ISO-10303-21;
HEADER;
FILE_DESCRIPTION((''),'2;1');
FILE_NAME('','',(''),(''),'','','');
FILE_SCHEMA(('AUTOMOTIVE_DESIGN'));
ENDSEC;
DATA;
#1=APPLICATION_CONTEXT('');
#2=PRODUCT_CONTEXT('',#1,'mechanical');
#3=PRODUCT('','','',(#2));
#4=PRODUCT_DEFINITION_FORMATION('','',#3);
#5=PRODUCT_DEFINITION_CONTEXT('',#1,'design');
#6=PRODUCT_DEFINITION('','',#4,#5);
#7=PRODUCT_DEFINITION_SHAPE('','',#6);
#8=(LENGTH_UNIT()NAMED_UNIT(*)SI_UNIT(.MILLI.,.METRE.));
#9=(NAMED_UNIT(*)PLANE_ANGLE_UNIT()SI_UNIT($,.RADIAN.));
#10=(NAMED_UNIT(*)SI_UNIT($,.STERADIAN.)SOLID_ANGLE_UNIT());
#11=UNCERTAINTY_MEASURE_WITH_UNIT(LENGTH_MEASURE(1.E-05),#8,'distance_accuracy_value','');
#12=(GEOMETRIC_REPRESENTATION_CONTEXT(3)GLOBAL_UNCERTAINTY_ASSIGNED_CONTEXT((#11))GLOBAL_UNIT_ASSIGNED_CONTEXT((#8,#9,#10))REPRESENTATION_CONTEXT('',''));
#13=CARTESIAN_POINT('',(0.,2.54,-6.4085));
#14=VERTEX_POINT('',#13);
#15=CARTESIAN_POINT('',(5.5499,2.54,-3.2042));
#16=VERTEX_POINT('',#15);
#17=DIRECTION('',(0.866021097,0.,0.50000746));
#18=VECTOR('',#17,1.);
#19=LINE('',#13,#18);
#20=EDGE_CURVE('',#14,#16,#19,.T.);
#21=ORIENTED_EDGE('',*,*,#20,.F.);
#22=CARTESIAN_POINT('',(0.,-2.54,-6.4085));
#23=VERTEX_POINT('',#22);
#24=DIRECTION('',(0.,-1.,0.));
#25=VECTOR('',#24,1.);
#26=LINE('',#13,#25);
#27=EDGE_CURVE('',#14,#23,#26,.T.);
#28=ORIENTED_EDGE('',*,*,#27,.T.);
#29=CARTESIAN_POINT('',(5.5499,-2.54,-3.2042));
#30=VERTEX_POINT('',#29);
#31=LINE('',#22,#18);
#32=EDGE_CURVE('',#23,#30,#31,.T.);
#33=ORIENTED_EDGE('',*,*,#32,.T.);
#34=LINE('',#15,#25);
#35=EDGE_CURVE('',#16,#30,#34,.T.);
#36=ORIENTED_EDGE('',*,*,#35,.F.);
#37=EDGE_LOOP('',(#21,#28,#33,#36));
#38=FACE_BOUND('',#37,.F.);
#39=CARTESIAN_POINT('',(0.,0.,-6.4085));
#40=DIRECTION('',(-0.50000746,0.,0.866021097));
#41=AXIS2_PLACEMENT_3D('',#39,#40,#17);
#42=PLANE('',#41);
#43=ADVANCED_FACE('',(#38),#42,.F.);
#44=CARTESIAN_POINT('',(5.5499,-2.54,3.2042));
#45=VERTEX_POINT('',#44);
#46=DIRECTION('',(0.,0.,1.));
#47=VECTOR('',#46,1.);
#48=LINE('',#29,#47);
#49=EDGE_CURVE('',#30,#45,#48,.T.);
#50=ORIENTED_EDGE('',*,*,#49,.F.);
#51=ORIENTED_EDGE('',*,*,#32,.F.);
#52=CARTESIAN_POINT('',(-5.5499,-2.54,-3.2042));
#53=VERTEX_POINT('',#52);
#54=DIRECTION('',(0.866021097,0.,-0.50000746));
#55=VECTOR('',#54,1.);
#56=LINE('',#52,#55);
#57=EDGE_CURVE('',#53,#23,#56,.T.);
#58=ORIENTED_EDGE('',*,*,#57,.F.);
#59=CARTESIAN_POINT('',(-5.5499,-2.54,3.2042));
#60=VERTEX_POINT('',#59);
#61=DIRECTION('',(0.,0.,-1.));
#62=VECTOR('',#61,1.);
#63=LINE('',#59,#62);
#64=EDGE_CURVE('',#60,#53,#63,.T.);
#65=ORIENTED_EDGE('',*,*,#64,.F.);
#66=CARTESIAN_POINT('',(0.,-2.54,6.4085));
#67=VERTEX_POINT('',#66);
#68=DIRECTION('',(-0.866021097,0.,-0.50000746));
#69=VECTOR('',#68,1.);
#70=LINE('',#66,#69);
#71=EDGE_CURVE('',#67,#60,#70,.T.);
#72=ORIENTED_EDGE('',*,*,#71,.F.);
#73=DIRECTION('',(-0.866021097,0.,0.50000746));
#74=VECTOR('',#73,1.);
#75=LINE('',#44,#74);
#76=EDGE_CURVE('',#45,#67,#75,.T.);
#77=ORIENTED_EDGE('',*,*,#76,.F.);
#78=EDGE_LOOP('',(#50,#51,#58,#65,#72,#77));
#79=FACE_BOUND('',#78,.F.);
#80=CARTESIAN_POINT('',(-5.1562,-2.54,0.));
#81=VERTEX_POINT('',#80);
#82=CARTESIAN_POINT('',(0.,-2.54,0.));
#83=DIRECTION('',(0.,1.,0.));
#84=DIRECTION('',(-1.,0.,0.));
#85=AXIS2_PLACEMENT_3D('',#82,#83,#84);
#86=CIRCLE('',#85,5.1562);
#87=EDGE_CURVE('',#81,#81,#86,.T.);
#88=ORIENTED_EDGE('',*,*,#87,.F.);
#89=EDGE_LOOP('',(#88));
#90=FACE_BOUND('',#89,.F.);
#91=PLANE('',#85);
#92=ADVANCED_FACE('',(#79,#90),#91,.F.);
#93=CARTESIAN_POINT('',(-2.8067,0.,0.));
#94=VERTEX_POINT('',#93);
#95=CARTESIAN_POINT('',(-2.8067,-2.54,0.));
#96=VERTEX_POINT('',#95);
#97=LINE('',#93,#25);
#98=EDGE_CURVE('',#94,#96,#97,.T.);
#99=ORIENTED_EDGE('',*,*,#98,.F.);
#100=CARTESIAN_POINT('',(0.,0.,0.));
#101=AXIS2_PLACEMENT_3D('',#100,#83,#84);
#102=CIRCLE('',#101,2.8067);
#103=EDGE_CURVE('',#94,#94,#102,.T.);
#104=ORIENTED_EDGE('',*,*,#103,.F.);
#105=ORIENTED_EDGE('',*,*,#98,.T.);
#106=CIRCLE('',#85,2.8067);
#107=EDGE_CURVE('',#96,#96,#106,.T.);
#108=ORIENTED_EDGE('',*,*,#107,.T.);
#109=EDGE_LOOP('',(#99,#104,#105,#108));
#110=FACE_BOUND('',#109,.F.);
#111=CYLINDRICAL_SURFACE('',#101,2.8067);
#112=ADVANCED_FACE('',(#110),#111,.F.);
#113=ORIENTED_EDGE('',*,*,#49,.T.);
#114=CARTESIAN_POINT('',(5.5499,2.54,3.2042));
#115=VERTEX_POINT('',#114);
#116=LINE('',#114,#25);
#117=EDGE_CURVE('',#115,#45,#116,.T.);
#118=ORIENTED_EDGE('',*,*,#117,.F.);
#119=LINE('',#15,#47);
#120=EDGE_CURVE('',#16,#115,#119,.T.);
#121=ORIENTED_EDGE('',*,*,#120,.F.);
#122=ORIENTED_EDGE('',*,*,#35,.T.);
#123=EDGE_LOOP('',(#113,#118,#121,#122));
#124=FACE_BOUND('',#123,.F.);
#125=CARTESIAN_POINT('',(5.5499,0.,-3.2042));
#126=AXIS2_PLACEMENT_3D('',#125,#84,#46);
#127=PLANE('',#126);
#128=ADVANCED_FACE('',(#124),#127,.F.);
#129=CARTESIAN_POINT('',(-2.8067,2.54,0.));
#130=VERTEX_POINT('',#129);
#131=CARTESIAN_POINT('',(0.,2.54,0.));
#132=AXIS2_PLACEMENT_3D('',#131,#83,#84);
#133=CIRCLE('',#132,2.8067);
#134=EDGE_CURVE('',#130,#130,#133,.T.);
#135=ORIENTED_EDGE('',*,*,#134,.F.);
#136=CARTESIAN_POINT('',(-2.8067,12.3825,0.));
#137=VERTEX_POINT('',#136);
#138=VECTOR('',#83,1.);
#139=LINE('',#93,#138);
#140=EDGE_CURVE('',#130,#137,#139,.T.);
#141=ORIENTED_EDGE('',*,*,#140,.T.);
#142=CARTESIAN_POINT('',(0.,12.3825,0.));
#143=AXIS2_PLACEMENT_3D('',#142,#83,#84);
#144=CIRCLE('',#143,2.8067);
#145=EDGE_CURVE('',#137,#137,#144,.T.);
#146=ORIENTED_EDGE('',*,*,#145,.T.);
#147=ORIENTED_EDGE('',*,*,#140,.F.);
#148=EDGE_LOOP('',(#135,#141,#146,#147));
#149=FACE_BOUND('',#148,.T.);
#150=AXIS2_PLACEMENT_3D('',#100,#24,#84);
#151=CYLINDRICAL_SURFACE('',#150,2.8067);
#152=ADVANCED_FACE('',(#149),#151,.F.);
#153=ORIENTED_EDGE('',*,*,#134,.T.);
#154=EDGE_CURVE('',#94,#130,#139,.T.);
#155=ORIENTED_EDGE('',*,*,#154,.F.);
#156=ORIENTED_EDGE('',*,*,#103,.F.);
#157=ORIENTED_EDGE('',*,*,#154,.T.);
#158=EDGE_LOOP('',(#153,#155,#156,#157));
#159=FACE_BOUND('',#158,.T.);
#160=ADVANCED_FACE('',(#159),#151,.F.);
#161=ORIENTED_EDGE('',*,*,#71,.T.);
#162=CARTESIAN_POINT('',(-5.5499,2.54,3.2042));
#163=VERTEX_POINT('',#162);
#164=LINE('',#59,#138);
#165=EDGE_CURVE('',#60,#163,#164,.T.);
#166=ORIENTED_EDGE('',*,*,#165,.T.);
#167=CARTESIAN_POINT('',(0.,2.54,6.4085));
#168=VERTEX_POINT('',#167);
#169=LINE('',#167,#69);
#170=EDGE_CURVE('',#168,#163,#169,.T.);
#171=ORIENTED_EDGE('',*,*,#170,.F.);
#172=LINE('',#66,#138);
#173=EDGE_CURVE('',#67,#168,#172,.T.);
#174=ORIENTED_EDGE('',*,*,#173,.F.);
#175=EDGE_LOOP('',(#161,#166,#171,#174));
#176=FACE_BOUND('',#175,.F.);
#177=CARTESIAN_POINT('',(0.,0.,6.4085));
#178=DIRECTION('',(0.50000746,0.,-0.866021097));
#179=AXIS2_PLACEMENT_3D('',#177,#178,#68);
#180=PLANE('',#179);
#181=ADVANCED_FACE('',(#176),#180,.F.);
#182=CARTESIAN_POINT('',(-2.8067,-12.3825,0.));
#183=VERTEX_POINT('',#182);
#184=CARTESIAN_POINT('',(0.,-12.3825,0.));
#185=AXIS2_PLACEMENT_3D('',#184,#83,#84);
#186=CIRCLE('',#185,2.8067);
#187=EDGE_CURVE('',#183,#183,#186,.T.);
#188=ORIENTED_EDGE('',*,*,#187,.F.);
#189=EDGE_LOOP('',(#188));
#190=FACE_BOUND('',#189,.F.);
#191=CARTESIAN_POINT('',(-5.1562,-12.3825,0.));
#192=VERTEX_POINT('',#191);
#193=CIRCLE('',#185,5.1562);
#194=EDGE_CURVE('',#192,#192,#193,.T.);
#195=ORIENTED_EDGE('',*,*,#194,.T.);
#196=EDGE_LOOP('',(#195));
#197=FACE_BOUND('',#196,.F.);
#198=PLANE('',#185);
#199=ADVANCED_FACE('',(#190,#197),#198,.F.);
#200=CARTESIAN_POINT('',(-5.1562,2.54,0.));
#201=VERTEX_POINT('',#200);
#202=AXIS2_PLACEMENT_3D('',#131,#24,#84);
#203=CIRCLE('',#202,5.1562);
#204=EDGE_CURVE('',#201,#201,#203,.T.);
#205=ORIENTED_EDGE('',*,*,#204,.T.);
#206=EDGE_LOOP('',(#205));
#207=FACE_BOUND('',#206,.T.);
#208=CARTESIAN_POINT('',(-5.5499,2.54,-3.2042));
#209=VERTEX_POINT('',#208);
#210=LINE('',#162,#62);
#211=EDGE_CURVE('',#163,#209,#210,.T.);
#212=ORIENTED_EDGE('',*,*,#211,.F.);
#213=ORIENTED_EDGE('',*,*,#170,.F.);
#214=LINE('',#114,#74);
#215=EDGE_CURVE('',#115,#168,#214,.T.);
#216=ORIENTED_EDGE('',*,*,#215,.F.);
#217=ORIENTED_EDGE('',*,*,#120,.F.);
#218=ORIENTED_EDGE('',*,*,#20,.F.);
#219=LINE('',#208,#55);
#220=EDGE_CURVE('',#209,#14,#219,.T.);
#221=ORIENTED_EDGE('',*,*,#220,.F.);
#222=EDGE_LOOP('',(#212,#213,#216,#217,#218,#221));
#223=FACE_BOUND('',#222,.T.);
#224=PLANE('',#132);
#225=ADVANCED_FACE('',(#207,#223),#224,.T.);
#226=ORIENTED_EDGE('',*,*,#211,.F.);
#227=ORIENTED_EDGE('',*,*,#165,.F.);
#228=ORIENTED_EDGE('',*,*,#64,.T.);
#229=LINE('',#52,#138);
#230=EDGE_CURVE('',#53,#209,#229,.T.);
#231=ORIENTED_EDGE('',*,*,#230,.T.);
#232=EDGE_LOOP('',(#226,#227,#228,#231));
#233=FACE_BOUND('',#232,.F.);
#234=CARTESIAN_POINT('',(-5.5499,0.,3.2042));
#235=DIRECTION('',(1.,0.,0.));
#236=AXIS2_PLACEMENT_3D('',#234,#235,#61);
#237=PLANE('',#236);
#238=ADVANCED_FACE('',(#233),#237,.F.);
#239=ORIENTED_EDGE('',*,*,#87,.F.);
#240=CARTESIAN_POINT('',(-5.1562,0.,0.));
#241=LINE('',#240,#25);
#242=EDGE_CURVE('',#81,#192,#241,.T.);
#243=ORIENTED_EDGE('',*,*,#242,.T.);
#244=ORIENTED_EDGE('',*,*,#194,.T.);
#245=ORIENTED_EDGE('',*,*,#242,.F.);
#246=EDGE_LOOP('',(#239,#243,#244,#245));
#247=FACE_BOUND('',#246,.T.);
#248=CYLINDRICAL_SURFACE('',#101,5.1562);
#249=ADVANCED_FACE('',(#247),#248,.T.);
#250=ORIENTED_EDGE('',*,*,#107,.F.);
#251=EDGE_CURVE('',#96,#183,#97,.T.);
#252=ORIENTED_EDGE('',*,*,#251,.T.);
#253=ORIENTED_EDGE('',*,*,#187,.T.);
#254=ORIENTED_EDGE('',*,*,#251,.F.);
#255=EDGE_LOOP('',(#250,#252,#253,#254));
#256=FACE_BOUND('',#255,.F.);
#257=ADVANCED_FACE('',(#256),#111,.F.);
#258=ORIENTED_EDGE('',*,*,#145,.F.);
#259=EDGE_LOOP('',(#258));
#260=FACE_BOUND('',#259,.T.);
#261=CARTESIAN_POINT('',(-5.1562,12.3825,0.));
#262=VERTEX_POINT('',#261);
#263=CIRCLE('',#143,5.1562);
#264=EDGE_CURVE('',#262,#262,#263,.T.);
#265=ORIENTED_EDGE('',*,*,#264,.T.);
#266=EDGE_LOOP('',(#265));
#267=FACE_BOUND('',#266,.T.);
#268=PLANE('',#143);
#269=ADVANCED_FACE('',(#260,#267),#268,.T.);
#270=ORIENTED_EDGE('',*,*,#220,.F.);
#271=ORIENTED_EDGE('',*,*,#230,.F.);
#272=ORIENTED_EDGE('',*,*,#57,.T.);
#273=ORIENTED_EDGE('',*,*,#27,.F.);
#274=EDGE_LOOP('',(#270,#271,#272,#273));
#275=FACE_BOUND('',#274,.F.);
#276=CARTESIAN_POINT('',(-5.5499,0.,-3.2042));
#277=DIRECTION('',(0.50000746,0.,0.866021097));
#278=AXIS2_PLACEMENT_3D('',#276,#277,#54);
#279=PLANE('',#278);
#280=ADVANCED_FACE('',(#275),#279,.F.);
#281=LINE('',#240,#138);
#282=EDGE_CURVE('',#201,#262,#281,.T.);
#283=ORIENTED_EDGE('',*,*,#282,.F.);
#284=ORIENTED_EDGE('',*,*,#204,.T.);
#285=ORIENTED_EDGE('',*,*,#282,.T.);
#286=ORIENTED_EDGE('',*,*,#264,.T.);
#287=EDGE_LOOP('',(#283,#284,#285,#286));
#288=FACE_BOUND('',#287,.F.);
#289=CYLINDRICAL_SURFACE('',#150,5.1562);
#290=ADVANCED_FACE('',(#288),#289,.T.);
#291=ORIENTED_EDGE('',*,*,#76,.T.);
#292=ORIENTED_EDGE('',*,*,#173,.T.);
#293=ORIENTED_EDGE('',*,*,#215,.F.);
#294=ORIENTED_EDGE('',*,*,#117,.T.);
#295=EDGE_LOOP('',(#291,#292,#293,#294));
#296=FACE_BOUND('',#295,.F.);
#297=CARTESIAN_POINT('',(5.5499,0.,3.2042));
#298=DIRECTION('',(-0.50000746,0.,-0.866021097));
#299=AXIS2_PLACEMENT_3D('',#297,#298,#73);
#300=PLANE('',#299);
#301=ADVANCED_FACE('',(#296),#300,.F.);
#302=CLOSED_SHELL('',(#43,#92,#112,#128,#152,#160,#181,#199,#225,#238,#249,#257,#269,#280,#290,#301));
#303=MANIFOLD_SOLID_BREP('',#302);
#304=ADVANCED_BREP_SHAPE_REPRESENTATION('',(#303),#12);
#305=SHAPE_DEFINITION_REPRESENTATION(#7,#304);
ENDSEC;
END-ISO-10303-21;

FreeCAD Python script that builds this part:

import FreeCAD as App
import Part
import Sketcher
Q = App.Units.Quantity


def add_polygon(sketch, points):
    """Adds a closed chain of lines whose ends are joined by coincident constraints."""
    first, n = sketch.GeometryCount, len(points)
    for a, b in zip(points, points[1:] + points[:1]):
        sketch.addGeometry(Part.LineSegment(App.Vector(*a, 0), App.Vector(*b, 0)), False)
    for i in range(n):
        sketch.addConstraint(Sketcher.Constraint("Coincident", first + i, 2, first + (i + 1) % n, 1))

doc = App.newDocument("Part")
params = doc.addObject("Spreadsheet::Sheet", "Params")
for row, (alias, value) in enumerate([
    ("sketch1_diameter", "0.221 in"),
    ("pad1_length", "0.2 in"),
    ("sketch2_diameter", "0.406 in"),
    ("sketch2_diameter2", "0.221 in"),
    ("pad2_length", "0.975 in"),
], start=1):
    params.set(f"A{row}", alias)
    params.set(f"B{row}", "=" + value)
    params.setAlias(f"B{row}", alias)

body = doc.addObject("PartDesign::Body", "Body")

sketch1 = doc.addObject("Sketcher::SketchObject", "Sketch")
body.addObject(sketch1)
sketch1.AttachmentSupport = (doc.XZ_Plane, [""])
sketch1.MapMode = "FlatFace"
add_polygon(sketch1, [(0, -6.4), (-5.5, -3.2), (-5.5, 3.2), (0, 6.4), (5.5, 3.2), (5.5, -3.2)])
sketch1.addGeometry(Part.Circle(App.Vector(0, 0, 0), App.Vector(0, 0, 1), 2.8), False)
sketch1.addConstraint(Sketcher.Constraint("Vertical", 1))
sketch1.addConstraint(Sketcher.Constraint("Vertical", 4))
sketch1.addConstraint(Sketcher.Constraint("Coincident", 6, 3, -1, 1))
sketch1.addConstraint(Sketcher.Constraint("Symmetric", 0, 2, 3, 2, -1, 1))
sketch1.addConstraint(Sketcher.Constraint("Symmetric", 2, 2, 5, 2, -1, 1))
sketch1.addConstraint(Sketcher.Constraint("PointOnObject", 2, 2, -2))
sketch1.addConstraint(Sketcher.Constraint("Parallel", 2, 5))
sketch1.addConstraint(Sketcher.Constraint("Horizontal", 1, 2, 3, 2))
sketch1.addConstraint(Sketcher.Constraint("Diameter", 6, Q("0.221 in")))
sketch1.addConstraint(Sketcher.Constraint("Angle", 0, Q("149.9995 deg")))
sketch1.addConstraint(Sketcher.Constraint("DistanceX", 1, 2, 3, 2, Q("0.437 in")))
sketch1.addConstraint(Sketcher.Constraint("DistanceY", 1, 1, 1, 2, Q("0.2523 in")))
sketch1.setExpression("Constraints[14]", "Params.sketch1_diameter")
pad1 = doc.addObject("PartDesign::Pad", "Pad")
body.addObject(pad1)
pad1.Profile = sketch1
pad1.setExpression("Length", "Params.pad1_length")
pad1.Midplane = True

sketch2 = doc.addObject("Sketcher::SketchObject", "Sketch001")
body.addObject(sketch2)
sketch2.AttachmentSupport = (doc.XZ_Plane, [""])
sketch2.MapMode = "FlatFace"
sketch2.addGeometry(Part.Circle(App.Vector(0, 0, 0), App.Vector(0, 0, 1), 5.2), False)
sketch2.addGeometry(Part.Circle(App.Vector(0, 0, 0), App.Vector(0, 0, 1), 2.8), False)
sketch2.addConstraint(Sketcher.Constraint("Coincident", 0, 3, -1, 1))
sketch2.addConstraint(Sketcher.Constraint("Coincident", 1, 3, -1, 1))
sketch2.addConstraint(Sketcher.Constraint("Diameter", 0, Q("0.406 in")))
sketch2.addConstraint(Sketcher.Constraint("Diameter", 1, Q("0.221 in")))
sketch2.setExpression("Constraints[2]", "Params.sketch2_diameter")
sketch2.setExpression("Constraints[3]", "Params.sketch2_diameter2")
pad2 = doc.addObject("PartDesign::Pad", "Pad001")
body.addObject(pad2)
pad2.Profile = sketch2
pad2.setExpression("Length", "Params.pad2_length")
pad2.Midplane = True

doc.recompute()
